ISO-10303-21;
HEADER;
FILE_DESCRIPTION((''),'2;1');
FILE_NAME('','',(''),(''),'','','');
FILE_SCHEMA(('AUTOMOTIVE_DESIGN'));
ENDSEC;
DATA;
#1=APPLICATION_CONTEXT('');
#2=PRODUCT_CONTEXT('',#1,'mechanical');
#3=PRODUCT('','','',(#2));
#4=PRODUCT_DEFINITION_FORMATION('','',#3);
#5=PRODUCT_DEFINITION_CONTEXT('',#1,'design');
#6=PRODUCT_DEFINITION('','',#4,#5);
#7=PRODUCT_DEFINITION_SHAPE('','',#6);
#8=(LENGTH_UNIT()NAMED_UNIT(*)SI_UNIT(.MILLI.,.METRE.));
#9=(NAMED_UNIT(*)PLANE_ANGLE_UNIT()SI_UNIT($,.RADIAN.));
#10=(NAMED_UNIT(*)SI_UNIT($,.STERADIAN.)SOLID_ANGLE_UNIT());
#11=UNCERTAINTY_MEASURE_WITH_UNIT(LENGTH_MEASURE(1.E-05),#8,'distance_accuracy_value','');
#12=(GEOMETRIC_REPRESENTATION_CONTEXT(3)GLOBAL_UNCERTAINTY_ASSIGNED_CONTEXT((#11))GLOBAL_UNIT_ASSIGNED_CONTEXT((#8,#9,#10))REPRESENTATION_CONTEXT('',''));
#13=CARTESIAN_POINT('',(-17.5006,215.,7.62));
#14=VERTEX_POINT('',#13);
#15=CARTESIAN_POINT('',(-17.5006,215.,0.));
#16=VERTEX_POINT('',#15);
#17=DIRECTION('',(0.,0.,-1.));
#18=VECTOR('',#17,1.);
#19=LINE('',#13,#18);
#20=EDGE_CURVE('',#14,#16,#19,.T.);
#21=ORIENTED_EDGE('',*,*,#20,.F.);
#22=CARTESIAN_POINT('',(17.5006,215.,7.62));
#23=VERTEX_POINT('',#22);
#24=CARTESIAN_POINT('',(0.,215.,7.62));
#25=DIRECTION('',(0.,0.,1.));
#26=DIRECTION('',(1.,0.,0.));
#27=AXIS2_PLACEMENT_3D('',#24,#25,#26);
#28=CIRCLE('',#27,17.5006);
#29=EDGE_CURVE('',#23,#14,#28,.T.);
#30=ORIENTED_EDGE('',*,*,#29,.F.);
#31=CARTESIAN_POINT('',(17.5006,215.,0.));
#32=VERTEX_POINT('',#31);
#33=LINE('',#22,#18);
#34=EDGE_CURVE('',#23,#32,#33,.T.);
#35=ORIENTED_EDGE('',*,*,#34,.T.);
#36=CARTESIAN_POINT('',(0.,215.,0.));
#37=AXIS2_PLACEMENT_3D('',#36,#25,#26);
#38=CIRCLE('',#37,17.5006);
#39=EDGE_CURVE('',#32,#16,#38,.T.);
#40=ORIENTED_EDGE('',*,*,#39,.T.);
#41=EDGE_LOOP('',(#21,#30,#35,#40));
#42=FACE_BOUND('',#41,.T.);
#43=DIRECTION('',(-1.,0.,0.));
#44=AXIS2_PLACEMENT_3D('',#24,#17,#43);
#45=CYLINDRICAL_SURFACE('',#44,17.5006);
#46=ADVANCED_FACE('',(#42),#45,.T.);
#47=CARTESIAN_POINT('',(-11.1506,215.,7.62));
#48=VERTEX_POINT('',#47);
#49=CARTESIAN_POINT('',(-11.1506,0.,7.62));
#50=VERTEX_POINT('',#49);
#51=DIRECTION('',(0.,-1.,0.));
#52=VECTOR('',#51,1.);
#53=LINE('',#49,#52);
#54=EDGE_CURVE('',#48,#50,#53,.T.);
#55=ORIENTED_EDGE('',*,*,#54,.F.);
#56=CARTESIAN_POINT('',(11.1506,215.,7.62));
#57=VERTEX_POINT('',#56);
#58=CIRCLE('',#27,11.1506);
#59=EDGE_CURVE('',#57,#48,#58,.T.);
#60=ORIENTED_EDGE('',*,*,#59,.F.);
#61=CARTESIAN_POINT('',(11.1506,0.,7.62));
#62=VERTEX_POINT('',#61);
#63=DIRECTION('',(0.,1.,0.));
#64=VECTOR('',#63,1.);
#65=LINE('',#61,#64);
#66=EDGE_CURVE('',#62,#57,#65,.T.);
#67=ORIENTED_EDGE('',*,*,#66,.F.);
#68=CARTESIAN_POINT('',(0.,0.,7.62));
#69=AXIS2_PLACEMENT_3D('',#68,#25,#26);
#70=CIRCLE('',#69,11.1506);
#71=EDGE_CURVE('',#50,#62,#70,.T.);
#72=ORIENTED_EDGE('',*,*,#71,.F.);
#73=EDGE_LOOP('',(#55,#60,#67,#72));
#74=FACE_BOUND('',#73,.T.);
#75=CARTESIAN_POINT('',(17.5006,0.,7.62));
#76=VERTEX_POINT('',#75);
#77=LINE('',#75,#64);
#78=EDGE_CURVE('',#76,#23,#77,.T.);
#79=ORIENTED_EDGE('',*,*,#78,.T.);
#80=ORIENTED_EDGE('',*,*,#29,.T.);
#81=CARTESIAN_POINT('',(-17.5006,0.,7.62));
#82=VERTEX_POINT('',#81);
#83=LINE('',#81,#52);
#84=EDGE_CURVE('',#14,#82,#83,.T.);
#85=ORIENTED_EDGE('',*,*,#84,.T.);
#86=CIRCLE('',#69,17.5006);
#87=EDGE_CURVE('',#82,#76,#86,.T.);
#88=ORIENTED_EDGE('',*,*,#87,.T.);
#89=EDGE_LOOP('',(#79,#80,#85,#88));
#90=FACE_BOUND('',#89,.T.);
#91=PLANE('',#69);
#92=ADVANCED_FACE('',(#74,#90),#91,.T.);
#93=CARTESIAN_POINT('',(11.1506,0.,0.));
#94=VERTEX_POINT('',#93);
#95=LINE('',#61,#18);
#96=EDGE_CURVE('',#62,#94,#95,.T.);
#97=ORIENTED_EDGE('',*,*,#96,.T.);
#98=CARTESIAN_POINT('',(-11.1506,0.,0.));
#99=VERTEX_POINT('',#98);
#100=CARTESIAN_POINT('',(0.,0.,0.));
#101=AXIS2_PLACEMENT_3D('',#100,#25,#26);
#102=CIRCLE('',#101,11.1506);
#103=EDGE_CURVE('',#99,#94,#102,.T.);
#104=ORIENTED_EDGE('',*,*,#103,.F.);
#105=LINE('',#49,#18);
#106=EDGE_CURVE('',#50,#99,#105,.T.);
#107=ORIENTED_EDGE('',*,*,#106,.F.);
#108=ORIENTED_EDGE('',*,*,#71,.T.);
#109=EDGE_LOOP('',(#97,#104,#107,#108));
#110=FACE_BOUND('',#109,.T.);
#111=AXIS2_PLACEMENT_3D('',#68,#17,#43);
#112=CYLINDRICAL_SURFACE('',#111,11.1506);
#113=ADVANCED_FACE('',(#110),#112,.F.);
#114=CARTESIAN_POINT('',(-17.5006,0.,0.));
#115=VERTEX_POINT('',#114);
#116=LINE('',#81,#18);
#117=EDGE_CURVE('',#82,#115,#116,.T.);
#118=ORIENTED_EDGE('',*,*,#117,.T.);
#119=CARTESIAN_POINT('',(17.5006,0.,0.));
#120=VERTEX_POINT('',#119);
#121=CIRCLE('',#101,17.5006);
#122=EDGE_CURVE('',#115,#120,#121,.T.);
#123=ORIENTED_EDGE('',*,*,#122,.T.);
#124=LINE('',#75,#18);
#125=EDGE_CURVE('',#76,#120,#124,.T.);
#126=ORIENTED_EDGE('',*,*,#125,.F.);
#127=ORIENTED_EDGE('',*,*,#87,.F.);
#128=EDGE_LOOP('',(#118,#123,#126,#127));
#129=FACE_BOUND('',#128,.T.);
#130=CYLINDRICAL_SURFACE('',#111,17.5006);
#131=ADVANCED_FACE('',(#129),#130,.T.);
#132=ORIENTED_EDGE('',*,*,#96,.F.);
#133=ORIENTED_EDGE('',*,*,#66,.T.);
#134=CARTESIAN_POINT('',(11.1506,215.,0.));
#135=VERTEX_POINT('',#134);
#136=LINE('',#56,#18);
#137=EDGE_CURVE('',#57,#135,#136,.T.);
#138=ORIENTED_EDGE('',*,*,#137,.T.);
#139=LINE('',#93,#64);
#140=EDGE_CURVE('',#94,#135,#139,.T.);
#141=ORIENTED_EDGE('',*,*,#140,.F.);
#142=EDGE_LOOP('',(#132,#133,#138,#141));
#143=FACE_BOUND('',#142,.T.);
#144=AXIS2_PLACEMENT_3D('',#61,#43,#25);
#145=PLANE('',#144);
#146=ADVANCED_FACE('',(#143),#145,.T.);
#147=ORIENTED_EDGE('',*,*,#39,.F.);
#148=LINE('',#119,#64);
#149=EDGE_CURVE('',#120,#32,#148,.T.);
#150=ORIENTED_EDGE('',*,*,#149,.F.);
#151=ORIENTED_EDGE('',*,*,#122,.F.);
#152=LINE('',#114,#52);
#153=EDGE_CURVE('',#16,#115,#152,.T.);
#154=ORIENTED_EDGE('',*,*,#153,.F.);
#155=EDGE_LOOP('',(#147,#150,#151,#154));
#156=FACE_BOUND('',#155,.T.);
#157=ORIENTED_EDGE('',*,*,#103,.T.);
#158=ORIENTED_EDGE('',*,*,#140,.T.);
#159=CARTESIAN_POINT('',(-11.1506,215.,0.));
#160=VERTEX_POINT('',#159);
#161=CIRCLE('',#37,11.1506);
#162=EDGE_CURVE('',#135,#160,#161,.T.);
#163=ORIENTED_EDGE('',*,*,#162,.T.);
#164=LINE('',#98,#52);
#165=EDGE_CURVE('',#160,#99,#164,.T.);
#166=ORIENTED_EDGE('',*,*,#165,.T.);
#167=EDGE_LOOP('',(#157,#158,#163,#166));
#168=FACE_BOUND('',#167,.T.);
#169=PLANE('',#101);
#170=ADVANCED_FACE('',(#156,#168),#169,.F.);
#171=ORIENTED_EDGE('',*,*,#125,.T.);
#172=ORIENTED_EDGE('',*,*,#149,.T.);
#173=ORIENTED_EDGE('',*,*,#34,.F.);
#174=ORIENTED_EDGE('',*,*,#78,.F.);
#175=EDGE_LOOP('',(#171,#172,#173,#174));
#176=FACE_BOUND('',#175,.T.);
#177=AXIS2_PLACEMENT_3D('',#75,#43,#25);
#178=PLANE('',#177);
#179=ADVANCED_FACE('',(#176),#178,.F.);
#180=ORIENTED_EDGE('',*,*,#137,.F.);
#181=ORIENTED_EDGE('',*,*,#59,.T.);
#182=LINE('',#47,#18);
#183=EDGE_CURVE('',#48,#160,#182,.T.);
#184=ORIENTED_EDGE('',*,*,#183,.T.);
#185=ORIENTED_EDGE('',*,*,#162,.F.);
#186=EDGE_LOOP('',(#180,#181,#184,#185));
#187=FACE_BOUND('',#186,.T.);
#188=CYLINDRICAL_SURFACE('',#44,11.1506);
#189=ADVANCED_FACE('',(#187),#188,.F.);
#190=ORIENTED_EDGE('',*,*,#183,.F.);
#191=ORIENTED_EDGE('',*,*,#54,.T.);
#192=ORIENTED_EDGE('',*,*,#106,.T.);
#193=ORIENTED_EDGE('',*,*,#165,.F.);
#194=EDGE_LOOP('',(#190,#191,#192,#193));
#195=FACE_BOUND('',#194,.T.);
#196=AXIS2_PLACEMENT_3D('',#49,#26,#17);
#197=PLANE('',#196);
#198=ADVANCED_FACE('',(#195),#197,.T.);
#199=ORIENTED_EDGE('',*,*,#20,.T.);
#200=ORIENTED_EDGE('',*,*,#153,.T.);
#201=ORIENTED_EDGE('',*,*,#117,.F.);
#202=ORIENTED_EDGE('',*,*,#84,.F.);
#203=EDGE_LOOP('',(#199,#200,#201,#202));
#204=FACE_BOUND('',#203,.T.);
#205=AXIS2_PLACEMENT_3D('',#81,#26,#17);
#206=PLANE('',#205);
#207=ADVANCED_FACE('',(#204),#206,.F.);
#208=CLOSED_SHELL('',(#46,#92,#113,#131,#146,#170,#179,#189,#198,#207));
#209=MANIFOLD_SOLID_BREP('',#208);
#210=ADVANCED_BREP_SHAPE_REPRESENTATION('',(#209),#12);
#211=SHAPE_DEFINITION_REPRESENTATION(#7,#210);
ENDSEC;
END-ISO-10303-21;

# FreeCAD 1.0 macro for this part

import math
import FreeCAD as App
import Part
import Sketcher
from FreeCAD import Vector
Q = App.Units.Quantity

doc = App.newDocument("Part")
params = doc.addObject("Spreadsheet::Sheet", "Params")
for row, (alias, value) in enumerate([
    ("sketch1_radius", "0.689 in"),
    ("sketch1_radius2", "0.439 in"),
    ("pad1_length", "0.3 in"),
], start=1):
    params.set(f"A{row}", alias)
    params.set(f"B{row}", "=" + value)
    params.setAlias(f"B{row}", alias)

body = doc.addObject("PartDesign::Body", "Body")

sketch1 = doc.addObject("Sketcher::SketchObject", "Sketch")
body.addObject(sketch1)
sketch1.AttachmentSupport = (doc.XY_Plane, [""])
sketch1.MapMode = "FlatFace"
sketch1.addGeometry(Part.LineSegment(Vector(-18, 215, 0), Vector(-18, 0, 0)), False)
sketch1.addGeometry(Part.ArcOfCircle(Part.Circle(Vector(0, 0, 0), Vector(0, 0, 1), 18), math.radians(180), math.radians(360)), False)
sketch1.addGeometry(Part.LineSegment(Vector(18, 0, 0), Vector(18, 215, 0)), False)
sketch1.addGeometry(Part.ArcOfCircle(Part.Circle(Vector(0, 215, 0), Vector(0, 0, 1), 18), math.radians(0), math.radians(180)), False)
sketch1.addGeometry(Part.LineSegment(Vector(-11, 0, 0), Vector(-11, 215, 0)), False)
sketch1.addGeometry(Part.ArcOfCircle(Part.Circle(Vector(0, 215, 0), Vector(0, 0, 1), 11), math.radians(0), math.radians(180)), False)
sketch1.addGeometry(Part.LineSegment(Vector(11, 215, 0), Vector(11, 0, 0)), False)
sketch1.addGeometry(Part.ArcOfCircle(Part.Circle(Vector(0, 0, 0), Vector(0, 0, 1), 11), math.radians(180), math.radians(360)), False)
sketch1.addConstraint(Sketcher.Constraint("Tangent", 0, 2, 1, 1))
sketch1.addConstraint(Sketcher.Constraint("Tangent", 1, 2, 2, 1))
sketch1.addConstraint(Sketcher.Constraint("Tangent", 2, 2, 3, 1))
sketch1.addConstraint(Sketcher.Constraint("Tangent", 3, 2, 0, 1))
sketch1.addConstraint(Sketcher.Constraint("Tangent", 4, 2, 5, 2))
sketch1.addConstraint(Sketcher.Constraint("Tangent", 5, 1, 6, 1))
sketch1.addConstraint(Sketcher.Constraint("Tangent", 6, 2, 7, 2))
sketch1.addConstraint(Sketcher.Constraint("Tangent", 7, 1, 4, 1))
sketch1.addConstraint(Sketcher.Constraint("Vertical", 0))
sketch1.addConstraint(Sketcher.Constraint("Vertical", 2))
sketch1.addConstraint(Sketcher.Constraint("Vertical", 4))
sketch1.addConstraint(Sketcher.Constraint("Vertical", 6))
sketch1.addConstraint(Sketcher.Constraint("Coincident", 1, 3, -1, 1))
sketch1.addConstraint(Sketcher.Constraint("Coincident", 7, 3, -1, 1))
sketch1.addConstraint(Sketcher.Constraint("Horizontal", 5, 3, 2, 2))
sketch1.addConstraint(Sketcher.Constraint("Radius", 1, Q("0.689 in")))
sketch1.addConstraint(Sketcher.Constraint("Radius", 5, Q("0.439 in")))
sketch1.addConstraint(Sketcher.Constraint("DistanceY", 0, 2, 0, 1, Q("215 mm")))
sketch1.setExpression("Constraints[15]", "Params.sketch1_radius")
sketch1.setExpression("Constraints[16]", "Params.sketch1_radius2")
pad1 = doc.addObject("PartDesign::Pad", "Pad")
body.addObject(pad1)
pad1.Profile = sketch1
pad1.setExpression("Length", "Params.pad1_length")

doc.recompute()
